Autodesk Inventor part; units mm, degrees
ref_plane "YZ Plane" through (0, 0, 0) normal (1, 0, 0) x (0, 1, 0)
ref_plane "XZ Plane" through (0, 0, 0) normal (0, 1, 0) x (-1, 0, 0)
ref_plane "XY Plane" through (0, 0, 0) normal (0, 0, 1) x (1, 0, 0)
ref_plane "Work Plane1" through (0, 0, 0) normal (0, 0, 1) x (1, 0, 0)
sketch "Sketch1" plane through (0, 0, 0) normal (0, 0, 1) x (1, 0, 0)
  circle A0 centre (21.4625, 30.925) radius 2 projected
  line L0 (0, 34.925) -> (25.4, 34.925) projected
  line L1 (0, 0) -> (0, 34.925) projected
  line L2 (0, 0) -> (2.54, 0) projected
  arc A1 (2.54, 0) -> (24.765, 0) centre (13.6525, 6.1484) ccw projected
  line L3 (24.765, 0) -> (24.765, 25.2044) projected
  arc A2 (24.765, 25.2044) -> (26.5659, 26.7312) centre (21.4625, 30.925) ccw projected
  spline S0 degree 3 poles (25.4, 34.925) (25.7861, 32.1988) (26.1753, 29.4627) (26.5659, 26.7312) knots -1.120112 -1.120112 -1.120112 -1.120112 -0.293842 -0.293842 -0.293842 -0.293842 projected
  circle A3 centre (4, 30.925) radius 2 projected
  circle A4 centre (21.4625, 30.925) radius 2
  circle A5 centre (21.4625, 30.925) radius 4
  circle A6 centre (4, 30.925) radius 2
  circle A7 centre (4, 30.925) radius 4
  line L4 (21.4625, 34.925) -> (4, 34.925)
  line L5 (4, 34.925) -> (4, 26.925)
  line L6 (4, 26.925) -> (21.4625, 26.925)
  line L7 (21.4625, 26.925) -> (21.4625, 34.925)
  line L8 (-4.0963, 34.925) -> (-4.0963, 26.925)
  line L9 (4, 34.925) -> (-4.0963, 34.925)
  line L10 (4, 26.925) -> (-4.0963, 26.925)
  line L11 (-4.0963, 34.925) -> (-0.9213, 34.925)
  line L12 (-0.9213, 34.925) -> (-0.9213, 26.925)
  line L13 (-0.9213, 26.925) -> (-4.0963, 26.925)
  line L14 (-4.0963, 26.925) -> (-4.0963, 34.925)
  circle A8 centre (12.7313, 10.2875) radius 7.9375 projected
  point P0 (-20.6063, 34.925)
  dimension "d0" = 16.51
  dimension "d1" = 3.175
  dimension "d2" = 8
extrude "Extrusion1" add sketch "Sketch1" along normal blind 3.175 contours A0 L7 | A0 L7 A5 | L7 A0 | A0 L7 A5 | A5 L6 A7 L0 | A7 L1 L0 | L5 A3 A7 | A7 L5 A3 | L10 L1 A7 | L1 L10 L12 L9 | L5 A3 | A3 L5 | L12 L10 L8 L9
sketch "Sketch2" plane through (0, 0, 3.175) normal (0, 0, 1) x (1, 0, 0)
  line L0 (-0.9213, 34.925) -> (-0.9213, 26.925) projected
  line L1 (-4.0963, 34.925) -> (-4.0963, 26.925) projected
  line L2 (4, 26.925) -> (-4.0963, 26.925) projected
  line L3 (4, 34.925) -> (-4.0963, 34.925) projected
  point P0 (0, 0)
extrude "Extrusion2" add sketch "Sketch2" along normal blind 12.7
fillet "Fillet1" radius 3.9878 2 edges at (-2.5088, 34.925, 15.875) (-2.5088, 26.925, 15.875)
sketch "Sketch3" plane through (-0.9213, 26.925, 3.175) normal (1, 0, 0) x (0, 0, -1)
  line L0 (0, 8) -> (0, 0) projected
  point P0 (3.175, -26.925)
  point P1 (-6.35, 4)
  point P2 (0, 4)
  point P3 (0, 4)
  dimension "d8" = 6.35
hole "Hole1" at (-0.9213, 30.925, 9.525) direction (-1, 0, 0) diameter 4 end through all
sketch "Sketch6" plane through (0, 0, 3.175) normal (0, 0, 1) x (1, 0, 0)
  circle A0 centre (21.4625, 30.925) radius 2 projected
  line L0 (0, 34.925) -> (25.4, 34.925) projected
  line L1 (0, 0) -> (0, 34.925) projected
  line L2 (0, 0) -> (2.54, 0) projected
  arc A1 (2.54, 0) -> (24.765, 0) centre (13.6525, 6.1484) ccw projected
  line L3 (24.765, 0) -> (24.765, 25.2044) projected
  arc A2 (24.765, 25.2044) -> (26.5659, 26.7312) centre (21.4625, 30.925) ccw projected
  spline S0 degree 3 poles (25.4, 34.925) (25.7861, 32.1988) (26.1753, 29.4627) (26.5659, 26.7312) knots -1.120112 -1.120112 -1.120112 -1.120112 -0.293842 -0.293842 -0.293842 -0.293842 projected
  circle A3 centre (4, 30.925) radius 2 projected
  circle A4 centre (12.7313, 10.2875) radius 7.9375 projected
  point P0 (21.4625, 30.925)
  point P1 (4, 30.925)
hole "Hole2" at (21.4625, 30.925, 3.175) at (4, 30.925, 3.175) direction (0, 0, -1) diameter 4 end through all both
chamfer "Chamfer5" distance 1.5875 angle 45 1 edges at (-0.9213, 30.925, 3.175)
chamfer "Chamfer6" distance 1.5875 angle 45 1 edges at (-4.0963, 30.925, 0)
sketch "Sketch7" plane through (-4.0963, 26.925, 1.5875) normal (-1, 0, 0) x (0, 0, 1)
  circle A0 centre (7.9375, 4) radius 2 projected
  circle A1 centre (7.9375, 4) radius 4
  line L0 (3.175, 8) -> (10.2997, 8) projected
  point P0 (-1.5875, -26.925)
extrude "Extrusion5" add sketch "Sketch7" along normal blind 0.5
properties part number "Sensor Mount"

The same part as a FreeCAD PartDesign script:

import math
import FreeCAD as App
import Part
import Sketcher
Q = App.Units.Quantity


def edges_at(feature, points):
    """Names of the edges that pass closest to the given points."""
    edges = feature.Shape.Edges
    near = lambda p: min(range(len(edges)), key=lambda i: edges[i].distToShape(Part.Vertex(*p))[0])
    return sorted({f"Edge{near(p) + 1}" for p in points})


def add_polygon(sketch, points):
    """Adds a closed chain of lines whose ends are joined by coincident constraints."""
    first, n = sketch.GeometryCount, len(points)
    for a, b in zip(points, points[1:] + points[:1]):
        sketch.addGeometry(Part.LineSegment(App.Vector(*a, 0), App.Vector(*b, 0)), False)
    for i in range(n):
        sketch.addConstraint(Sketcher.Constraint("Coincident", first + i, 2, first + (i + 1) % n, 1))

doc = App.newDocument("Part")
body = doc.addObject("PartDesign::Body", "Body")

# Sketch on XY plane
sketch1 = body.newObject("Sketcher::SketchObject", "Sketch")
sketch1.AttachmentSupport = (doc.getObject("XY_Plane"), [""])
sketch1.MapMode = "FlatFace"
sketch1.addGeometry([
    Part.LineSegment(App.Vector(21.4625, 34.925, 0), App.Vector(-4.0963, 34.925, 0)),
    Part.LineSegment(App.Vector(-4.0963, 34.925, 0), App.Vector(-4.0963, 26.925, 0)),
    Part.LineSegment(App.Vector(-4.0963, 26.925, 0), App.Vector(21.4625, 26.925, 0)),
    Part.ArcOfCircle(Part.Circle(App.Vector(21.4625, 30.925, 0), App.Vector(0, 0, 1), 4), math.radians(-90), math.radians(90)),
], False)
sketch1.addConstraint([
    Sketcher.Constraint("Coincident", 0, 2, 1, 1),
    Sketcher.Constraint("Coincident", 1, 2, 2, 1),
    Sketcher.Constraint("Tangent", 2, 2, 3, 1),
    Sketcher.Constraint("Tangent", 3, 2, 0, 1),
    Sketcher.Constraint("Horizontal", 0),
    Sketcher.Constraint("Vertical", 1),
    Sketcher.Constraint("Horizontal", 2),
    Sketcher.Constraint("Radius", 3, Q("4 mm")),
    Sketcher.Constraint("DistanceY", -1, 1, 0, 2, Q("1.375 in")),
    Sketcher.Constraint("DistanceX", 0, 2, 0, 1, Q("25.5588 mm")),
    Sketcher.Constraint("DistanceX", -1, 1, 3, 3, Q("21.4625 mm")),
])
pad1 = body.newObject("PartDesign::Pad", "Pad")
pad1.Profile = sketch1
pad1.Length = Q("0.125 in")

# Sketch on XY plane
sketch2 = body.newObject("Sketcher::SketchObject", "Sketch001")
sketch2.AttachmentSupport = (doc.getObject("XY_Plane"), [""])
sketch2.MapMode = "FlatFace"
sketch2.AttachmentOffset = App.Placement(App.Vector(0, 0, 0.125 * 25.4), App.Rotation())
add_polygon(sketch2, [(-0.9213, 26.925), (-0.9213, 34.925), (-4.0963, 34.925), (-4.0963, 26.925)])  # lines 0-3
sketch2.addConstraint([
    Sketcher.Constraint("Vertical", 0),
    Sketcher.Constraint("Horizontal", 1),
    Sketcher.Constraint("Vertical", 2),
    Sketcher.Constraint("Horizontal", 3),
    Sketcher.Constraint("DistanceX", 1, 2, 1, 1, Q("0.125 in")),
    Sketcher.Constraint("DistanceY", -1, 1, 0, 2, Q("1.375 in")),
    Sketcher.Constraint("DistanceY", 0, 1, 0, 2, Q("8 mm")),
    Sketcher.Constraint("DistanceX", 0, 2, -1, 1, Q("0.9213 mm")),
])
pad2 = body.newObject("PartDesign::Pad", "Pad001")
pad2.Profile = sketch2
pad2.Length = Q("0.5 in")
doc.recompute()

fillet = body.newObject("PartDesign::Fillet", "Fillet")
fillet.Base = (pad2, edges_at(pad2, [(-2.509, 34.925, 15.875), (-2.509, 26.925, 15.875)]))
fillet.Radius = Q("0.157 in")

# Sketch on YZ plane
sketch3 = body.newObject("Sketcher::SketchObject", "Sketch002")
sketch3.AttachmentSupport = (doc.getObject("YZ_Plane"), [""])
sketch3.MapMode = "FlatFace"
sketch3.AttachmentOffset = App.Placement(App.Vector(0, 0, -0.9213), App.Rotation())
sketch3.addGeometry(Part.Circle(App.Vector(30.925, 9.525, 0), App.Vector(0, 0, 1), 2), False)
sketch3.addConstraint([
    Sketcher.Constraint("Diameter", 0, Q("4 mm")),
    Sketcher.Constraint("DistanceY", -1, 1, 0, 3, Q("0.375 in")),
    Sketcher.Constraint("DistanceX", -1, 1, 0, 3, Q("30.925 mm")),
])
doc.recompute()
hole = body.newObject("PartDesign::Hole", "Hole")
hole.Profile = sketch3
hole.ThreadType = "None"
hole.Diameter = 4
hole.DepthType = "ThroughAll"

# Sketch on XY plane
sketch4 = body.newObject("Sketcher::SketchObject", "Sketch003")
sketch4.AttachmentSupport = (doc.getObject("XY_Plane"), [""])
sketch4.MapMode = "FlatFace"
sketch4.AttachmentOffset = App.Placement(App.Vector(0, 0, 0.125 * 25.4), App.Rotation())
sketch4.addGeometry([
    Part.Circle(App.Vector(21.4625, 30.925, 0), App.Vector(0, 0, 1), 2),
    Part.Circle(App.Vector(4, 30.925, 0), App.Vector(0, 0, 1), 2),
], False)
sketch4.addConstraint([
    Sketcher.Constraint("Equal", 0, 1),
    Sketcher.Constraint("Horizontal", 0, 3, 1, 3),
    Sketcher.Constraint("Diameter", 0, Q("4 mm")),
    Sketcher.Constraint("DistanceX", 1, 3, 0, 3, Q("0.6875 in")),
    Sketcher.Constraint("DistanceX", -1, 1, 0, 3, Q("21.4625 mm")),
    Sketcher.Constraint("DistanceY", -1, 1, 0, 3, Q("30.925 mm")),
])
doc.recompute()
hole2 = body.newObject("PartDesign::Hole", "Hole001")
hole2.Profile = sketch4
hole2.ThreadType = "None"
hole2.Diameter = 4
hole2.DepthType = "ThroughAll"
doc.recompute()

chamfer = body.newObject("PartDesign::Chamfer", "Chamfer")
chamfer.Base = (hole2, edges_at(hole2, [(-0.921, 30.925, 3.175)]))
chamfer.Size = Q("0.0625 in")
doc.recompute()

chamfer2 = body.newObject("PartDesign::Chamfer", "Chamfer001")
chamfer2.Base = (chamfer, edges_at(chamfer, [(-4.096, 30.925, 0)]))
chamfer2.Size = Q("0.0625 in")

# Sketch on YZ plane
sketch5 = body.newObject("Sketcher::SketchObject", "Sketch004")
sketch5.AttachmentSupport = (doc.getObject("YZ_Plane"), [""])
sketch5.MapMode = "FlatFace"
sketch5.AttachmentOffset = App.Placement(App.Vector(0, 0, -4.0963), App.Rotation())
sketch5.addGeometry([
    Part.Circle(App.Vector(30.925, 9.525, 0), App.Vector(0, 0, 1), 4),
    Part.Circle(App.Vector(30.925, 9.525, 0), App.Vector(0, 0, 1), 2),
], False)
sketch5.addConstraint([
    Sketcher.Constraint("Coincident", 1, 3, 0, 3),
    Sketcher.Constraint("Diameter", 0, Q("8 mm")),
    Sketcher.Constraint("Diameter", 1, Q("4 mm")),
    Sketcher.Constraint("DistanceY", -1, 1, 0, 3, Q("0.375 in")),
    Sketcher.Constraint("DistanceX", -1, 1, 0, 3, Q("30.925 mm")),
])
pad3 = body.newObject("PartDesign::Pad", "Pad002")
pad3.Profile = sketch5
pad3.Length = 0.5
pad3.Reversed = True

doc.recompute()
